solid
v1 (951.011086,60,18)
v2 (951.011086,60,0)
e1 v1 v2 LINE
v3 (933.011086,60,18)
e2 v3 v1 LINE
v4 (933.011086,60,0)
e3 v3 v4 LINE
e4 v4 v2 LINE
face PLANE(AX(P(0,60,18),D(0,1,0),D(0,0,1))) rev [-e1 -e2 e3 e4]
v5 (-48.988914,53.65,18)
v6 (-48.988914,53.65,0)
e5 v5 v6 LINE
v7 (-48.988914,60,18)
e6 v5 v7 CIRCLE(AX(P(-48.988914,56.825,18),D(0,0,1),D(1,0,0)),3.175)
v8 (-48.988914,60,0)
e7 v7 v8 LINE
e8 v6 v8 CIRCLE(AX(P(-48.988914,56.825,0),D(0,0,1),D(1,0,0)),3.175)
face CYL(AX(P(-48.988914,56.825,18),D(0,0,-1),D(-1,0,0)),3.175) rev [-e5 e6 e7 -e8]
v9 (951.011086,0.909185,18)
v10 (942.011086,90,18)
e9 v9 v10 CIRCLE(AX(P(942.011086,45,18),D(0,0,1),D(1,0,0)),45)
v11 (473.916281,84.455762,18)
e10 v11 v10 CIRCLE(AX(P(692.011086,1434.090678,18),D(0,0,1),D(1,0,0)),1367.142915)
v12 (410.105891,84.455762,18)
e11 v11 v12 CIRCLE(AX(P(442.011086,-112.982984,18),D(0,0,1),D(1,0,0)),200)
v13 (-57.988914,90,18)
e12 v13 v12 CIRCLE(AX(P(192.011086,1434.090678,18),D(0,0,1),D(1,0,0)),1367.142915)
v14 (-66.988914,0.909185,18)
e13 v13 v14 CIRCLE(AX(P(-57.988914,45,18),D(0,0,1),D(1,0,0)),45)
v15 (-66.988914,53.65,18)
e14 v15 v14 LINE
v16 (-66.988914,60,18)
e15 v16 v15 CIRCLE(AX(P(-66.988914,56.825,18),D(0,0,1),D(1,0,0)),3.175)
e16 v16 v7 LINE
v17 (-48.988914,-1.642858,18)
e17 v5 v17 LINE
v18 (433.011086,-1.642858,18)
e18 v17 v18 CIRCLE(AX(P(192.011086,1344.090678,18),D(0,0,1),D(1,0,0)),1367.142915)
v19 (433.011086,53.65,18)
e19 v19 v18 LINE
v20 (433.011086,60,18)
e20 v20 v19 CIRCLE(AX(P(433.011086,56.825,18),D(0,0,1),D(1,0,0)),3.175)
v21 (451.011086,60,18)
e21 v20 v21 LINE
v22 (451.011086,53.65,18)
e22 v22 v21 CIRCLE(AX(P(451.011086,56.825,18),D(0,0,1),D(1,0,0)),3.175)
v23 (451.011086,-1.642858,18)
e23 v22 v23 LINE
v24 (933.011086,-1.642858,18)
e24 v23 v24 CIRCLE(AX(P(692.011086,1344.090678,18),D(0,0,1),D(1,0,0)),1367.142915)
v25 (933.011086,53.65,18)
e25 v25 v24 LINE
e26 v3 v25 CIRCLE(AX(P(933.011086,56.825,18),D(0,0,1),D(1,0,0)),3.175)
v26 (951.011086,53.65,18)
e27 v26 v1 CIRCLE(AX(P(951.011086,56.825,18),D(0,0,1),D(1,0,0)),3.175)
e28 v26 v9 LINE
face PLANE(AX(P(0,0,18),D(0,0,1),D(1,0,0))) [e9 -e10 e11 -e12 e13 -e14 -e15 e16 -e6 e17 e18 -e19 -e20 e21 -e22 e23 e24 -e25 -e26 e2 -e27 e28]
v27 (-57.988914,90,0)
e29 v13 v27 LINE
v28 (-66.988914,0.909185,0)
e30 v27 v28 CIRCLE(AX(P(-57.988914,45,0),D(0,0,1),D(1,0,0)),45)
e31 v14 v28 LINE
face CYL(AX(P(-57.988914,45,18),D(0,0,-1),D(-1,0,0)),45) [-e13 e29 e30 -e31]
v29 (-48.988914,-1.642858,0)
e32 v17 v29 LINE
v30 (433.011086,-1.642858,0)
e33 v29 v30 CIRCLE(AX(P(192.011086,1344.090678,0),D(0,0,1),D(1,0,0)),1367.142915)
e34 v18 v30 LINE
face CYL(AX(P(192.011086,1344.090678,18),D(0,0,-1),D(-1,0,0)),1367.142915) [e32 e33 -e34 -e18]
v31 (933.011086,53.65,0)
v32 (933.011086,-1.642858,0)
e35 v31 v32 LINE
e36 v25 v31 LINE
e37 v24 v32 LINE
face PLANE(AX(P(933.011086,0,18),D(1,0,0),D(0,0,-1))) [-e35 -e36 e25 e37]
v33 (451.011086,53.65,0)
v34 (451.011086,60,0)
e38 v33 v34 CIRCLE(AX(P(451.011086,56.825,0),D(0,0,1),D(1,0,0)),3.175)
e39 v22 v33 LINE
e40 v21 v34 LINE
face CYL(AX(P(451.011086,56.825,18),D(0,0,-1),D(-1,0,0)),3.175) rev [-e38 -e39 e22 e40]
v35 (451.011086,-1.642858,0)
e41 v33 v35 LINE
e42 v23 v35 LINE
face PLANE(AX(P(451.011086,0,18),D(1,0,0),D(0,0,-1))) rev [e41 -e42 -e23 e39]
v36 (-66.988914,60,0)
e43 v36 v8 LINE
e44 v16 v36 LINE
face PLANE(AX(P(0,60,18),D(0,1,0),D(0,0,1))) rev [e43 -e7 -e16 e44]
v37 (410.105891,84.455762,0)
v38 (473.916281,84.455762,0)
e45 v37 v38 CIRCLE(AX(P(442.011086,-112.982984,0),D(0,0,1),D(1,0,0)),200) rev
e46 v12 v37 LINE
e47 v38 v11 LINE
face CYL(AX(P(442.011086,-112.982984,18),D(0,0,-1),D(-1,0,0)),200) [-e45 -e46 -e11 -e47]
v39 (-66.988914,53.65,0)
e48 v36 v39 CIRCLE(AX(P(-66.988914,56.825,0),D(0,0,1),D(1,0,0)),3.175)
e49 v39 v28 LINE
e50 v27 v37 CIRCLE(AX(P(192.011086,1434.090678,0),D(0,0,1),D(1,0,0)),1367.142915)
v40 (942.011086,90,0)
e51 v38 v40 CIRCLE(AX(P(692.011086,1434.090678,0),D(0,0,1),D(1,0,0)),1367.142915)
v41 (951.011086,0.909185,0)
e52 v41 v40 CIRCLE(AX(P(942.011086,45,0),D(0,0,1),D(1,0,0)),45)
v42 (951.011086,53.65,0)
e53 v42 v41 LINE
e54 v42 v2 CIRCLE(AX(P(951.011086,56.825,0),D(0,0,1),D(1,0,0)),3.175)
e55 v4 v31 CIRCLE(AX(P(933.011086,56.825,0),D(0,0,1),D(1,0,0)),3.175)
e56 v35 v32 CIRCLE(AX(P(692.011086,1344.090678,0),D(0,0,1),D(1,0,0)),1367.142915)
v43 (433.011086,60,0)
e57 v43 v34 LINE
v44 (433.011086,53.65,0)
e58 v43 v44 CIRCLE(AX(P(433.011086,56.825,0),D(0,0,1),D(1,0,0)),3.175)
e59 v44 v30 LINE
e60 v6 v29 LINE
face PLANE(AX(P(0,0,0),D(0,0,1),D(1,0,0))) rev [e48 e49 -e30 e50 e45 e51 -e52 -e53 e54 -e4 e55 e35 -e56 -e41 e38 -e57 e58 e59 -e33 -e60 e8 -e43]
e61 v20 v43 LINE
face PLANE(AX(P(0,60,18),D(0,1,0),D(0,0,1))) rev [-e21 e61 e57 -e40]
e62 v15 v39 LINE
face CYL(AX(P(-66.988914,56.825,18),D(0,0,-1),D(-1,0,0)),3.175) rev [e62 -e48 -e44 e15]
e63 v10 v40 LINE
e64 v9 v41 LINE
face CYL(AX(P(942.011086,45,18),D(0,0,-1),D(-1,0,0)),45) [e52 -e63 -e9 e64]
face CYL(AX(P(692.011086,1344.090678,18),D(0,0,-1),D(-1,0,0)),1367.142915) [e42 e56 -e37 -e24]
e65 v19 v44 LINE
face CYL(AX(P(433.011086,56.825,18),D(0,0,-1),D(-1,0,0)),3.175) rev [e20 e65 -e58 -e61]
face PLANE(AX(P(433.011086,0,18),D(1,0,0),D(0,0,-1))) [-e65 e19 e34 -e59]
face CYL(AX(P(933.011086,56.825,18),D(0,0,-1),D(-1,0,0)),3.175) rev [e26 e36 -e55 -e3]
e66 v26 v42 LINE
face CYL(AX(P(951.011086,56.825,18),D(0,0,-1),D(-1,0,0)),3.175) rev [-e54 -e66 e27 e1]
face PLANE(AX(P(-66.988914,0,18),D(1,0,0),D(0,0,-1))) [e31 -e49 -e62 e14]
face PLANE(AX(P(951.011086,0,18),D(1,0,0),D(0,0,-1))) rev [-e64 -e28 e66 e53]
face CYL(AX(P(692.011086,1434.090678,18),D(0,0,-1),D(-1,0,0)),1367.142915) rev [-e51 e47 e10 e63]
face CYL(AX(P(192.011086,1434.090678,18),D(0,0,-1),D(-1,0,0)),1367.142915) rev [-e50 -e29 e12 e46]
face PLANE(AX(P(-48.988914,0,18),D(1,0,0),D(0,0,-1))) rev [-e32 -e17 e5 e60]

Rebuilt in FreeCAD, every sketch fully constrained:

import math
import FreeCAD as App
import Part
import Sketcher
Q = App.Units.Quantity


def edges_at(feature, points):
    """Names of the edges that pass closest to the given points."""
    edges = feature.Shape.Edges
    near = lambda p: min(range(len(edges)), key=lambda i: edges[i].distToShape(Part.Vertex(*p))[0])
    return sorted({f"Edge{near(p) + 1}" for p in points})

doc = App.newDocument("Part")
body = doc.addObject("PartDesign::Body", "Body")

# Sketch on XY plane
sketch1 = body.newObject("Sketcher::SketchObject", "Sketch")
sketch1.AttachmentSupport = (doc.getObject("XY_Plane"), [""])
sketch1.MapMode = "FlatFace"
sketch1.addGeometry(Part.ArcOfCircle(Part.Circle(App.Vector(-66.988914, 56.825, 0), App.Vector(0, 0, 1), 3.175), math.radians(90), math.radians(270)), False)
sketch1.addGeometry(Part.LineSegment(App.Vector(-66.988914, 60, 0), App.Vector(-48.988914, 60, 0)), False)
sketch1.addGeometry(Part.ArcOfCircle(Part.Circle(App.Vector(-48.988914, 56.825, 0), App.Vector(0, 0, 1), 3.175), math.radians(-90), math.radians(90)), False)
sketch1.addGeometry(Part.LineSegment(App.Vector(-48.988914, 53.65, 0), App.Vector(-48.988914, -1.642858, 0)), False)
sketch1.addGeometry(Part.ArcOfCircle(Part.Circle(App.Vector(192.011086, 1344.090678, 0), App.Vector(0, 0, 1), 1367.142915), math.radians(-100.153157), math.radians(-79.846843)), False)
sketch1.addGeometry(Part.LineSegment(App.Vector(433.011086, -1.642858, 0), App.Vector(433.011086, 53.65, 0)), False)
sketch1.addGeometry(Part.ArcOfCircle(Part.Circle(App.Vector(433.011086, 56.825, 0), App.Vector(0, 0, 1), 3.175), math.radians(90), math.radians(270)), False)
sketch1.addGeometry(Part.LineSegment(App.Vector(433.011086, 60, 0), App.Vector(451.011086, 60, 0)), False)
sketch1.addGeometry(Part.ArcOfCircle(Part.Circle(App.Vector(451.011086, 56.825, 0), App.Vector(0, 0, 1), 3.175), math.radians(-90), math.radians(90)), False)
sketch1.addGeometry(Part.LineSegment(App.Vector(451.011086, 53.65, 0), App.Vector(451.011086, -1.642858, 0)), False)
sketch1.addGeometry(Part.ArcOfCircle(Part.Circle(App.Vector(692.011086, 1344.090678, 0), App.Vector(0, 0, 1), 1367.142915), math.radians(-100.153157), math.radians(-79.846843)), False)
sketch1.addGeometry(Part.LineSegment(App.Vector(933.011086, -1.642858, 0), App.Vector(933.011086, 53.65, 0)), False)
sketch1.addGeometry(Part.ArcOfCircle(Part.Circle(App.Vector(933.011086, 56.825, 0), App.Vector(0, 0, 1), 3.175), math.radians(90), math.radians(270)), False)
sketch1.addGeometry(Part.LineSegment(App.Vector(933.011086, 60, 0), App.Vector(951.011086, 60, 0)), False)
sketch1.addGeometry(Part.ArcOfCircle(Part.Circle(App.Vector(951.011086, 56.825, 0), App.Vector(0, 0, 1), 3.175), math.radians(-90), math.radians(90)), False)
sketch1.addGeometry(Part.LineSegment(App.Vector(951.011086, 53.65, 0), App.Vector(951.011086, 0.909185, 0)), False)
sketch1.addGeometry(Part.ArcOfCircle(Part.Circle(App.Vector(942.011086, 45, 0), App.Vector(0, 0, 1), 45), math.radians(-78.463041), math.radians(0)), False)
sketch1.addGeometry(Part.ArcOfCircle(Part.Circle(App.Vector(942.011086, 45, 0), App.Vector(0, 0, 1), 45), math.radians(0), math.radians(90)), False)
sketch1.addGeometry(Part.ArcOfCircle(Part.Circle(App.Vector(692.011084, 1434.090687, 0), App.Vector(0, 0, 1), 1367.142924), math.radians(-80.131527), math.radians(-79.463428)), False)
sketch1.addGeometry(Part.ArcOfCircle(Part.Circle(App.Vector(692.011086, 1434.090678, 0), App.Vector(0, 0, 1), 1367.142915), math.radians(-99.868473), math.radians(-80.131527)), False)
sketch1.addGeometry(Part.ArcOfCircle(Part.Circle(App.Vector(692.011086, 1434.090677, 0), App.Vector(0, 0, 1), 1367.142914), math.radians(-100.536572), math.radians(-99.868473)), False)
sketch1.addGeometry(Part.ArcOfCircle(Part.Circle(App.Vector(192.011084, 1434.090687, 0), App.Vector(0, 0, 1), 1367.142924), math.radians(-80.131527), math.radians(-79.463428)), False)
sketch1.addGeometry(Part.ArcOfCircle(Part.Circle(App.Vector(192.011086, 1434.090678, 0), App.Vector(0, 0, 1), 1367.142915), math.radians(-99.868473), math.radians(-80.131527)), False)
sketch1.addGeometry(Part.ArcOfCircle(Part.Circle(App.Vector(192.011086, 1434.090677, 0), App.Vector(0, 0, 1), 1367.142914), math.radians(-100.536572), math.radians(-99.868473)), False)
sketch1.addGeometry(Part.ArcOfCircle(Part.Circle(App.Vector(-57.988914, 45, 0), App.Vector(0, 0, 1), 45), math.radians(90), math.radians(258.463041)), False)
sketch1.addGeometry(Part.LineSegment(App.Vector(-66.988914, 0.909185, 0), App.Vector(-66.988914, 53.65, 0)), False)
sketch1.addConstraint(Sketcher.Constraint("Tangent", 0, 1, 1, 1))
sketch1.addConstraint(Sketcher.Constraint("Tangent", 1, 2, 2, 2))
sketch1.addConstraint(Sketcher.Constraint("Coincident", 2, 1, 3, 1))
sketch1.addConstraint(Sketcher.Constraint("Coincident", 3, 2, 4, 1))
sketch1.addConstraint(Sketcher.Constraint("Coincident", 4, 2, 5, 1))
sketch1.addConstraint(Sketcher.Constraint("Coincident", 5, 2, 6, 2))
sketch1.addConstraint(Sketcher.Constraint("Tangent", 6, 1, 7, 1))
sketch1.addConstraint(Sketcher.Constraint("Tangent", 7, 2, 8, 2))
sketch1.addConstraint(Sketcher.Constraint("Coincident", 8, 1, 9, 1))
sketch1.addConstraint(Sketcher.Constraint("Coincident", 9, 2, 10, 1))
sketch1.addConstraint(Sketcher.Constraint("Coincident", 10, 2, 11, 1))
sketch1.addConstraint(Sketcher.Constraint("Coincident", 11, 2, 12, 2))
sketch1.addConstraint(Sketcher.Constraint("Tangent", 12, 1, 13, 1))
sketch1.addConstraint(Sketcher.Constraint("Tangent", 13, 2, 14, 2))
sketch1.addConstraint(Sketcher.Constraint("Coincident", 14, 1, 15, 1))
sketch1.addConstraint(Sketcher.Constraint("Coincident", 15, 2, 16, 1))
sketch1.addConstraint(Sketcher.Constraint("Tangent", 16, 2, 17, 1))
sketch1.addConstraint(Sketcher.Constraint("Coincident", 17, 2, 18, 2))
sketch1.addConstraint(Sketcher.Constraint("Coincident", 18, 1, 19, 2))
sketch1.addConstraint(Sketcher.Constraint("Coincident", 19, 1, 20, 2))
sketch1.addConstraint(Sketcher.Constraint("Coincident", 20, 1, 21, 2))
sketch1.addConstraint(Sketcher.Constraint("Coincident", 21, 1, 22, 2))
sketch1.addConstraint(Sketcher.Constraint("Coincident", 22, 1, 23, 2))
sketch1.addConstraint(Sketcher.Constraint("Coincident", 23, 1, 24, 1))
sketch1.addConstraint(Sketcher.Constraint("Coincident", 24, 2, 25, 1))
sketch1.addConstraint(Sketcher.Constraint("Coincident", 25, 2, 0, 2))
sketch1.addConstraint(Sketcher.Constraint("Horizontal", 1))
sketch1.addConstraint(Sketcher.Constraint("Vertical", 3))
sketch1.addConstraint(Sketcher.Constraint("Vertical", 5))
sketch1.addConstraint(Sketcher.Constraint("Horizontal", 7))
sketch1.addConstraint(Sketcher.Constraint("Vertical", 9))
sketch1.addConstraint(Sketcher.Constraint("Vertical", 11))
sketch1.addConstraint(Sketcher.Constraint("Horizontal", 13))
sketch1.addConstraint(Sketcher.Constraint("Vertical", 15))
sketch1.addConstraint(Sketcher.Constraint("Vertical", 25))
sketch1.addConstraint(Sketcher.Constraint("Coincident", 19, 3, 18, 3))
sketch1.addConstraint(Sketcher.Constraint("Coincident", 20, 3, 19, 3))
sketch1.addConstraint(Sketcher.Constraint("Coincident", 22, 3, 21, 3))
sketch1.addConstraint(Sketcher.Constraint("Coincident", 23, 3, 22, 3))
sketch1.addConstraint(Sketcher.Constraint("Equal", 0, 2))
sketch1.addConstraint(Sketcher.Constraint("Equal", 2, 6))
sketch1.addConstraint(Sketcher.Constraint("Equal", 6, 8))
sketch1.addConstraint(Sketcher.Constraint("Equal", 4, 10))
sketch1.addConstraint(Sketcher.Constraint("Equal", 8, 12))
sketch1.addConstraint(Sketcher.Constraint("Equal", 12, 14))
sketch1.addConstraint(Sketcher.Constraint("Equal", 16, 17))
sketch1.addConstraint(Sketcher.Constraint("Equal", 10, 19))
sketch1.addConstraint(Sketcher.Constraint("Equal", 18, 21))
sketch1.addConstraint(Sketcher.Constraint("Equal", 17, 24))
sketch1.addConstraint(Sketcher.Constraint("Horizontal", 2, 3, 6, 3))
sketch1.addConstraint(Sketcher.Constraint("Horizontal", 4, 3, 10, 3))
sketch1.addConstraint(Sketcher.Constraint("Horizontal", 8, 3, 12, 3))
sketch1.addConstraint(Sketcher.Constraint("Horizontal", 18, 3, 21, 3))
sketch1.addConstraint(Sketcher.Constraint("Horizontal", 17, 3, 24, 3))
sketch1.addConstraint(Sketcher.Constraint("Horizontal", 24, 3, 16, 2))
sketch1.addConstraint(Sketcher.Constraint("Horizontal", 18, 1, 19, 1))
sketch1.addConstraint(Sketcher.Constraint("Horizontal", 17, 2, 20, 1))
sketch1.addConstraint(Sketcher.Constraint("Horizontal", 19, 1, 21, 1))
sketch1.addConstraint(Sketcher.Constraint("Horizontal", 21, 1, 22, 1))
sketch1.addConstraint(Sketcher.Constraint("Horizontal", 15, 2, 24, 2))
sketch1.addConstraint(Sketcher.Constraint("Vertical", 10, 3, 18, 3))
sketch1.addConstraint(Sketcher.Constraint("Vertical", 4, 3, 21, 3))
sketch1.addConstraint(Sketcher.Constraint("Vertical", 1, 2, 2, 1))
sketch1.addConstraint(Sketcher.Constraint("Vertical", 5, 2, 6, 1))
sketch1.addConstraint(Sketcher.Constraint("Vertical", 7, 2, 8, 1))
sketch1.addConstraint(Sketcher.Constraint("Vertical", 11, 2, 12, 1))
sketch1.addConstraint(Sketcher.Constraint("Vertical", 13, 2, 14, 1))
sketch1.addConstraint(Sketcher.Constraint("Vertical", 16, 3, 17, 2))
sketch1.addConstraint(Sketcher.Constraint("Vertical", 0, 1, 24, 2))
sketch1.addConstraint(Sketcher.Constraint("Equal", 1, 7))
sketch1.addConstraint(Sketcher.Constraint("Equal", 7, 13))
sketch1.addConstraint(Sketcher.Constraint("Equal", 3, 5))
sketch1.addConstraint(Sketcher.Constraint("Equal", 5, 9))
sketch1.addConstraint(Sketcher.Constraint("Equal", 9, 11))
sketch1.addConstraint(Sketcher.Constraint("Radius", 16, Q("45 mm")))
sketch1.addConstraint(Sketcher.Constraint("DistanceX", 1, 1, 1, 2, Q("18 mm")))
sketch1.addConstraint(Sketcher.Constraint("DistanceY", -1, 1, 16, 3, Q("45 mm")))
sketch1.addConstraint(Sketcher.Constraint("DistanceY", -1, 1, 0, 1, Q("60 mm")))
sketch1.addConstraint(Sketcher.Constraint("Radius", 0, Q("3.175 mm")))
sketch1.addConstraint(Sketcher.Constraint("DistanceX", 2, 3, 4, 3, Q("241 mm")))
sketch1.addConstraint(Sketcher.Constraint("DistanceY", 10, 3, 19, 3, Q("90 mm")))
sketch1.addConstraint(Sketcher.Constraint("Radius", 4, Q("1367.142915 mm")))
sketch1.addConstraint(Sketcher.Constraint("DistanceX", -1, 1, 18, 1, Q("926.32163 mm")))
sketch1.addConstraint(Sketcher.Constraint("DistanceX", 0, 3, -1, 1, Q("66.988914 mm")))
pad1 = body.newObject("PartDesign::Pad", "Pad")
pad1.Profile = sketch1
pad1.Length = 18
doc.recompute()

fillet = body.newObject("PartDesign::Fillet", "Fillet")
fillet.Base = (pad1, edges_at(pad1, [(442.011, 90, 9)]))
fillet.Radius = 200

doc.recompute()
